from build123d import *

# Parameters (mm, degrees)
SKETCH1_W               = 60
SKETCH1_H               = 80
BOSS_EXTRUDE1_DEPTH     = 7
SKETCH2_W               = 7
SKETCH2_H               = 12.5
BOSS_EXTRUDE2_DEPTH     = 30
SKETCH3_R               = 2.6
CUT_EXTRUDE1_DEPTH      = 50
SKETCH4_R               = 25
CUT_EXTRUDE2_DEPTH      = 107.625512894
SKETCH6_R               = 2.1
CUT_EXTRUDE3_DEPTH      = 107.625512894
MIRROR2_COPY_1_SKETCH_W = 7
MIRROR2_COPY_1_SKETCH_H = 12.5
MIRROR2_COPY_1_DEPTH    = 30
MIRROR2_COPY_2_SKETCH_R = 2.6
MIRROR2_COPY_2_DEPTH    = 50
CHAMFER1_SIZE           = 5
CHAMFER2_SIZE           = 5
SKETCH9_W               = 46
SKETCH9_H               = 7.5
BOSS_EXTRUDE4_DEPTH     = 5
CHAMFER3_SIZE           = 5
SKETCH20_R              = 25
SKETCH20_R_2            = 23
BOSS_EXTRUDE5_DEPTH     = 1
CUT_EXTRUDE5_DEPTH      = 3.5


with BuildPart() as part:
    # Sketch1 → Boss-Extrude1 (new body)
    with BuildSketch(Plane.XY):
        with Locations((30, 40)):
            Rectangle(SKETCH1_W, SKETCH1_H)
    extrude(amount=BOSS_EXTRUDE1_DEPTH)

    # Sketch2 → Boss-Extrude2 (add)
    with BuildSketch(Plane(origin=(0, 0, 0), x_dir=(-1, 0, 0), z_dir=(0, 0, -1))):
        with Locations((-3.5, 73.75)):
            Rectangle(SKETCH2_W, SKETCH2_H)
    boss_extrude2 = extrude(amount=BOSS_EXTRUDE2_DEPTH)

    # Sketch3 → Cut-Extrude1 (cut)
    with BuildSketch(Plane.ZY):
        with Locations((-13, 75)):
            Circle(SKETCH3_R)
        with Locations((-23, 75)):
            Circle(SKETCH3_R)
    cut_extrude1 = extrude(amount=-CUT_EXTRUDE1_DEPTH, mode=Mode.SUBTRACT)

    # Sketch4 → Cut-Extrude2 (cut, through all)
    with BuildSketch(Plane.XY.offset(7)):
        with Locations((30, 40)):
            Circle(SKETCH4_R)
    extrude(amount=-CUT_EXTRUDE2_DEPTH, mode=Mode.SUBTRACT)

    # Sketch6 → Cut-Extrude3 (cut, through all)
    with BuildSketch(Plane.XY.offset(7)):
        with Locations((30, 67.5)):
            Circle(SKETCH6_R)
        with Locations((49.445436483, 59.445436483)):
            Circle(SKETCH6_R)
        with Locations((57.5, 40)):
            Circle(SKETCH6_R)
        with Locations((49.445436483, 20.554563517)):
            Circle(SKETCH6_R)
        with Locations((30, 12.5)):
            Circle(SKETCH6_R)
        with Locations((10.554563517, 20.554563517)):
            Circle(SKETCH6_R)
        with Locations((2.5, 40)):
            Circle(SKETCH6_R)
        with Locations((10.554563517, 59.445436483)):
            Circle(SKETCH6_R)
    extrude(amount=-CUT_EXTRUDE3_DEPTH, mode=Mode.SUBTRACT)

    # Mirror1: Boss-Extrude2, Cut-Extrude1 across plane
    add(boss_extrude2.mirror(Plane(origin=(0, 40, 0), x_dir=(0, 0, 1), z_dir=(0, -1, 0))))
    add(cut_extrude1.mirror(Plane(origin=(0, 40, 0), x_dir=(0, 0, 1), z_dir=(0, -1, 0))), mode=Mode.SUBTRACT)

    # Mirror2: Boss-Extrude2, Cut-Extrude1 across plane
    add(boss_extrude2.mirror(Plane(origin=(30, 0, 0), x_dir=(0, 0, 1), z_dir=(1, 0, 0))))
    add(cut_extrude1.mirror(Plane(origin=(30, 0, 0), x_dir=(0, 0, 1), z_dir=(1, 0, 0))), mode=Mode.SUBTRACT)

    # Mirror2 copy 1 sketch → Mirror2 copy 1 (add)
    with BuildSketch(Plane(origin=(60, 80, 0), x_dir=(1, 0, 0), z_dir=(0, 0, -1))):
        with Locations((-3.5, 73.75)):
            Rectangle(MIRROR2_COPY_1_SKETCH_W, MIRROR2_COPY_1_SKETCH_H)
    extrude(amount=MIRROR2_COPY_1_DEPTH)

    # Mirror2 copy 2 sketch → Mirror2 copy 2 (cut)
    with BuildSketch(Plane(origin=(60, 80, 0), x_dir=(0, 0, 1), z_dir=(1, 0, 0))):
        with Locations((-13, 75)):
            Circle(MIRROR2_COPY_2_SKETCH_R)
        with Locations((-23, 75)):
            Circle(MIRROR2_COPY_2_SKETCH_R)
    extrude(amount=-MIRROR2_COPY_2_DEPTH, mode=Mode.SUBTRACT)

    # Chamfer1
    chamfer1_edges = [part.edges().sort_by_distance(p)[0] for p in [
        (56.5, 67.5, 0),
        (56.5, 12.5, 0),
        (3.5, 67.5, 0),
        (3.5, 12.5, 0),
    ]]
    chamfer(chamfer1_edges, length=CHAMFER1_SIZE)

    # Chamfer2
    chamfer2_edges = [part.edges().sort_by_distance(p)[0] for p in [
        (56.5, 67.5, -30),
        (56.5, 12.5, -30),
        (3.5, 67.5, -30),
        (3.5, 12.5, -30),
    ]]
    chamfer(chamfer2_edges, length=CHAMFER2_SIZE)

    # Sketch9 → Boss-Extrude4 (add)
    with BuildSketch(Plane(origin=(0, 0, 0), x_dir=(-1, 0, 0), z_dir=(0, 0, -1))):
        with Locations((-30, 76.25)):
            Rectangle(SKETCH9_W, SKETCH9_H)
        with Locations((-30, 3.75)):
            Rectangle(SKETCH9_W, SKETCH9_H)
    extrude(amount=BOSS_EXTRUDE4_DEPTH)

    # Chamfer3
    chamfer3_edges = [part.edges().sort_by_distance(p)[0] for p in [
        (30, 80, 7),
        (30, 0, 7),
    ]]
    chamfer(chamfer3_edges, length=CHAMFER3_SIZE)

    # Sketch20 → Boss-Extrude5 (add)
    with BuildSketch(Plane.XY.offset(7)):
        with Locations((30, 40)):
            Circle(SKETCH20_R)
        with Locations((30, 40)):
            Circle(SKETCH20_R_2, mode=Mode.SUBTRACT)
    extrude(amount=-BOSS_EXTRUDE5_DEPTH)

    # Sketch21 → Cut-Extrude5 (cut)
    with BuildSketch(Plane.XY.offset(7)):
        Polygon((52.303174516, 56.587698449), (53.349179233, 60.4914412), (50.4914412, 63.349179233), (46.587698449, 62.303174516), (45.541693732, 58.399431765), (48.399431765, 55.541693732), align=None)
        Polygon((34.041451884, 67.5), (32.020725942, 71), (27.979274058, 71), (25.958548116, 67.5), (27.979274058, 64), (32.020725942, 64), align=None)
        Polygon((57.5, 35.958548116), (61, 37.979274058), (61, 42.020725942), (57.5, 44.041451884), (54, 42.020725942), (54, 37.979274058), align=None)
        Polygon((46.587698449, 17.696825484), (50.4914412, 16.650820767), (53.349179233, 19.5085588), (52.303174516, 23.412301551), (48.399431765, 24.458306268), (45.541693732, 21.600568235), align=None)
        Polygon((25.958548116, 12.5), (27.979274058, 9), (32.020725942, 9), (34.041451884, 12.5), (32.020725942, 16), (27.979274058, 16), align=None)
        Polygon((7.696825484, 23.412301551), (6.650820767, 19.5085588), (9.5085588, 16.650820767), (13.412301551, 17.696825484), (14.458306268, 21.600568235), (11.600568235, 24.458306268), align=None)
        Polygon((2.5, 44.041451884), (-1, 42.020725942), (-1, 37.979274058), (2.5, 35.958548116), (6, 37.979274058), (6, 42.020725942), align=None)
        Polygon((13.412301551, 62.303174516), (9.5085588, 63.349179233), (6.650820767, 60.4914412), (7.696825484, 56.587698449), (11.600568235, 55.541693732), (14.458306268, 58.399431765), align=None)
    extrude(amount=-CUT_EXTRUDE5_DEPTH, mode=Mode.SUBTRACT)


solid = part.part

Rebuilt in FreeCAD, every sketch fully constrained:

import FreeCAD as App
import Part
import Sketcher
Q = App.Units.Quantity


def edges_at(feature, points):
    """Names of the edges that pass closest to the given points."""
    edges = feature.Shape.Edges
    near = lambda p: min(range(len(edges)), key=lambda i: edges[i].distToShape(Part.Vertex(*p))[0])
    return sorted({f"Edge{near(p) + 1}" for p in points})

doc = App.newDocument("Part")
params = doc.addObject("Spreadsheet::Sheet", "Params")
for row, (alias, value) in enumerate([
    ("sketch1_width", "60 mm"),
    ("sketch1_height", "80 mm"),
    ("pad1_length", "7 mm"),
    ("sketch2_width", "7 mm"),
    ("sketch2_height", "12.5 mm"),
    ("pad2_length", "30 mm"),
    ("sketch3_diameter", "5.2 mm"),
    ("pocket1_length", "50 mm"),
    ("sketch4_diameter", "50 mm"),
    ("sketch5_diameter", "4.2 mm"),
    ("sketch6_width", "7 mm"),
    ("sketch6_height", "12.5 mm"),
    ("pad3_length", "30 mm"),
    ("sketch7_diameter", "5.2 mm"),
    ("pocket4_length", "50 mm"),
    ("chamfer_size", "5 mm"),
    ("chamfer2_size", "5 mm"),
    ("sketch8_width", "46 mm"),
    ("sketch8_height", "7.5 mm"),
    ("pad4_length", "5 mm"),
    ("chamfer3_size", "5 mm"),
    ("sketch9_diameter", "50 mm"),
    ("sketch9_diameter2", "46 mm"),
    ("pad5_length", "1 mm"),
    ("pocket5_length", "3.5 mm"),
], start=1):
    params.set(f"A{row}", alias)
    params.set(f"B{row}", "=" + value)
    params.setAlias(f"B{row}", alias)

body = doc.addObject("PartDesign::Body", "Body")

sketch1 = doc.addObject("Sketcher::SketchObject", "Sketch")
body.addObject(sketch1)
sketch1.AttachmentSupport = (doc.XY_Plane, [""])
sketch1.MapMode = "FlatFace"
sketch1.addGeometry([
    Part.LineSegment(App.Vector(0, 80, 0), App.Vector(0, 0, 0)),
    Part.LineSegment(App.Vector(0, 0, 0), App.Vector(60, 0, 0)),
    Part.LineSegment(App.Vector(60, 0, 0), App.Vector(60, 80, 0)),
    Part.LineSegment(App.Vector(60, 80, 0), App.Vector(0, 80, 0)),
], False)
sketch1.addConstraint([
    Sketcher.Constraint("Coincident", 0, 2, 1, 1),
    Sketcher.Constraint("Coincident", 1, 2, 2, 1),
    Sketcher.Constraint("Coincident", 2, 2, 3, 1),
    Sketcher.Constraint("Coincident", 3, 2, 0, 1),
    Sketcher.Constraint("Vertical", 0),
    Sketcher.Constraint("Horizontal", 1),
    Sketcher.Constraint("Vertical", 2),
    Sketcher.Constraint("Horizontal", 3),
    Sketcher.Constraint("Coincident", 0, 2, -1, 1),
    Sketcher.Constraint("DistanceX", 1, 1, 1, 2, Q("60 mm")),
    Sketcher.Constraint("DistanceY", 0, 2, 0, 1, Q("80 mm")),
])
sketch1.setExpression("Constraints[9]", "Params.sketch1_width")
sketch1.setExpression("Constraints[10]", "Params.sketch1_height")
pad1 = doc.addObject("PartDesign::Pad", "Pad")
body.addObject(pad1)
pad1.Profile = sketch1
pad1.setExpression("Length", "Params.pad1_length")

sketch2 = doc.addObject("Sketcher::SketchObject", "Sketch001")
body.addObject(sketch2)
sketch2.AttachmentSupport = (doc.XY_Plane, [""])
sketch2.MapMode = "FlatFace"
sketch2.addGeometry([
    Part.LineSegment(App.Vector(7, 80, 0), App.Vector(7, 67.5, 0)),
    Part.LineSegment(App.Vector(7, 67.5, 0), App.Vector(0, 67.5, 0)),
    Part.LineSegment(App.Vector(0, 67.5, 0), App.Vector(0, 80, 0)),
    Part.LineSegment(App.Vector(0, 80, 0), App.Vector(7, 80, 0)),
], False)
sketch2.addConstraint([
    Sketcher.Constraint("Coincident", 0, 2, 1, 1),
    Sketcher.Constraint("Coincident", 1, 2, 2, 1),
    Sketcher.Constraint("Coincident", 2, 2, 3, 1),
    Sketcher.Constraint("Coincident", 3, 2, 0, 1),
    Sketcher.Constraint("Vertical", 0),
    Sketcher.Constraint("Horizontal", 1),
    Sketcher.Constraint("Vertical", 2),
    Sketcher.Constraint("Horizontal", 3),
    Sketcher.Constraint("PointOnObject", 1, 2, -2),
    Sketcher.Constraint("DistanceX", 1, 2, 1, 1, Q("7 mm")),
    Sketcher.Constraint("DistanceY", 0, 2, 0, 1, Q("12.5 mm")),
    Sketcher.Constraint("DistanceY", -1, 1, 2, 2, Q("80 mm")),
])
sketch2.setExpression("Constraints[9]", "Params.sketch2_width")
sketch2.setExpression("Constraints[10]", "Params.sketch2_height")
pad2 = doc.addObject("PartDesign::Pad", "Pad001")
body.addObject(pad2)
pad2.Profile = sketch2
pad2.setExpression("Length", "Params.pad2_length")
pad2.Reversed = True

sketch3 = doc.addObject("Sketcher::SketchObject", "Sketch002")
body.addObject(sketch3)
sketch3.AttachmentSupport = (doc.YZ_Plane, [""])
sketch3.MapMode = "FlatFace"
sketch3.addGeometry([
    Part.Circle(App.Vector(75, -13, 0), App.Vector(0, 0, 1), 2.6),
    Part.Circle(App.Vector(75, -23, 0), App.Vector(0, 0, 1), 2.6),
], False)
sketch3.addConstraint([
    Sketcher.Constraint("Equal", 0, 1),
    Sketcher.Constraint("Vertical", 0, 3, 1, 3),
    Sketcher.Constraint("Diameter", 0, Q("5.2 mm")),
    Sketcher.Constraint("DistanceX", -1, 1, 0, 3, Q("75 mm")),
    Sketcher.Constraint("DistanceY", 0, 3, -1, 1, Q("13 mm")),
    Sketcher.Constraint("DistanceY", 1, 3, -1, 1, Q("23 mm")),
])
sketch3.setExpression("Constraints[2]", "Params.sketch3_diameter")
pocket1 = doc.addObject("PartDesign::Pocket", "Pocket")
body.addObject(pocket1)
pocket1.Profile = sketch3
pocket1.setExpression("Length", "Params.pocket1_length")
pocket1.Reversed = True

sketch4 = doc.addObject("Sketcher::SketchObject", "Sketch003")
body.addObject(sketch4)
sketch4.AttachmentSupport = (doc.XY_Plane, [""])
sketch4.MapMode = "FlatFace"
sketch4.AttachmentOffset = App.Placement(App.Vector(0, 0, 7), App.Rotation())
sketch4.addGeometry(Part.Circle(App.Vector(30, 40, 0), App.Vector(0, 0, 1), 25), False)
sketch4.addConstraint([
    Sketcher.Constraint("Diameter", 0, Q("50 mm")),
    Sketcher.Constraint("DistanceX", -1, 1, 0, 3, Q("30 mm")),
    Sketcher.Constraint("DistanceY", -1, 1, 0, 3, Q("40 mm")),
])
sketch4.setExpression("Constraints[0]", "Params.sketch4_diameter")
pocket2 = doc.addObject("PartDesign::Pocket", "Pocket001")
body.addObject(pocket2)
pocket2.Profile = sketch4
pocket2.Type = "ThroughAll"

sketch5 = doc.addObject("Sketcher::SketchObject", "Sketch004")
body.addObject(sketch5)
sketch5.AttachmentSupport = (doc.XY_Plane, [""])
sketch5.MapMode = "FlatFace"
sketch5.AttachmentOffset = App.Placement(App.Vector(0, 0, 7), App.Rotation())
sketch5.addGeometry([
    Part.Circle(App.Vector(30, 67.5, 0), App.Vector(0, 0, 1), 2.1),
    Part.Circle(App.Vector(49.445436, 59.445436, 0), App.Vector(0, 0, 1), 2.1),
    Part.Circle(App.Vector(57.5, 40, 0), App.Vector(0, 0, 1), 2.1),
    Part.Circle(App.Vector(49.445436, 20.554564, 0), App.Vector(0, 0, 1), 2.1),
    Part.Circle(App.Vector(30, 12.5, 0), App.Vector(0, 0, 1), 2.1),
    Part.Circle(App.Vector(10.554564, 20.554564, 0), App.Vector(0, 0, 1), 2.1),
    Part.Circle(App.Vector(2.5, 40, 0), App.Vector(0, 0, 1), 2.1),
    Part.Circle(App.Vector(10.554564, 59.445436, 0), App.Vector(0, 0, 1), 2.1),
], False)
sketch5.addConstraint([
    Sketcher.Constraint("Equal", 0, 1),
    Sketcher.Constraint("Equal", 1, 2),
    Sketcher.Constraint("Equal", 2, 3),
    Sketcher.Constraint("Equal", 3, 4),
    Sketcher.Constraint("Equal", 4, 5),
    Sketcher.Constraint("Equal", 5, 6),
    Sketcher.Constraint("Equal", 6, 7),
    Sketcher.Constraint("Horizontal", 3, 3, 5, 3),
    Sketcher.Constraint("Horizontal", 2, 3, 6, 3),
    Sketcher.Constraint("Horizontal", 1, 3, 7, 3),
    Sketcher.Constraint("Vertical", 1, 3, 3, 3),
    Sketcher.Constraint("Vertical", 0, 3, 4, 3),
    Sketcher.Constraint("Vertical", 5, 3, 7, 3),
    Sketcher.Constraint("Diameter", 0, Q("4.2 mm")),
    Sketcher.Constraint("DistanceX", -1, 1, 0, 3, Q("30 mm")),
    Sketcher.Constraint("DistanceY", -1, 1, 2, 3, Q("40 mm")),
    Sketcher.Constraint("DistanceY", 4, 3, 0, 3, Q("55 mm")),
    Sketcher.Constraint("DistanceY", -1, 1, 0, 3, Q("67.5 mm")),
    Sketcher.Constraint("DistanceX", -1, 1, 2, 3, Q("57.5 mm")),
    Sketcher.Constraint("DistanceX", -1, 1, 6, 3, Q("2.5 mm")),
    Sketcher.Constraint("DistanceX", -1, 1, 1, 3, Q("49.445436 mm")),
    Sketcher.Constraint("DistanceY", -1, 1, 1, 3, Q("59.445436 mm")),
    Sketcher.Constraint("DistanceY", -1, 1, 3, 3, Q("20.554564 mm")),
    Sketcher.Constraint("DistanceX", -1, 1, 5, 3, Q("10.554564 mm")),
])
sketch5.setExpression("Constraints[13]", "Params.sketch5_diameter")
pocket3 = doc.addObject("PartDesign::Pocket", "Pocket002")
body.addObject(pocket3)
pocket3.Profile = sketch5
pocket3.Type = "ThroughAll"
doc.recompute()

datumplane = doc.addObject("PartDesign::Plane", "DatumPlane")
body.addObject(datumplane)
datumplane.AttachmentSupport = (doc.XZ_Plane, [""])
datumplane.MapMode = "FlatFace"
datumplane.AttachmentOffset = App.Placement(App.Vector(0, 0, -40), App.Rotation())
mirrored = doc.addObject("PartDesign::Mirrored", "Mirrored")
body.addObject(mirrored)
mirrored.Originals = [pad2, pocket1]
mirrored.MirrorPlane = (datumplane, [""])
body.Tip = mirrored
doc.recompute()

datumplane2 = doc.addObject("PartDesign::Plane", "DatumPlane001")
body.addObject(datumplane2)
datumplane2.AttachmentSupport = (doc.YZ_Plane, [""])
datumplane2.MapMode = "FlatFace"
datumplane2.AttachmentOffset = App.Placement(App.Vector(0, 0, 30), App.Rotation())
mirrored2 = doc.addObject("PartDesign::Mirrored", "Mirrored001")
body.addObject(mirrored2)
mirrored2.Originals = [pad2, pocket1]
mirrored2.MirrorPlane = (datumplane2, [""])
body.Tip = mirrored2

sketch6 = doc.addObject("Sketcher::SketchObject", "Sketch005")
body.addObject(sketch6)
sketch6.AttachmentSupport = (doc.XY_Plane, [""])
sketch6.MapMode = "FlatFace"
sketch6.addGeometry([
    Part.LineSegment(App.Vector(53, 0, 0), App.Vector(53, 12.5, 0)),
    Part.LineSegment(App.Vector(53, 12.5, 0), App.Vector(60, 12.5, 0)),
    Part.LineSegment(App.Vector(60, 12.5, 0), App.Vector(60, 0, 0)),
    Part.LineSegment(App.Vector(60, 0, 0), App.Vector(53, 0, 0)),
], False)
sketch6.addConstraint([
    Sketcher.Constraint("Coincident", 0, 2, 1, 1),
    Sketcher.Constraint("Coincident", 1, 2, 2, 1),
    Sketcher.Constraint("Coincident", 2, 2, 3, 1),
    Sketcher.Constraint("Coincident", 3, 2, 0, 1),
    Sketcher.Constraint("Vertical", 0),
    Sketcher.Constraint("Horizontal", 1),
    Sketcher.Constraint("Vertical", 2),
    Sketcher.Constraint("Horizontal", 3),
    Sketcher.Constraint("PointOnObject", 2, 2, -1),
    Sketcher.Constraint("DistanceX", 1, 1, 1, 2, Q("7 mm")),
    Sketcher.Constraint("DistanceY", 0, 1, 0, 2, Q("12.5 mm")),
    Sketcher.Constraint("DistanceX", -1, 1, 0, 2, Q("53 mm")),
])
sketch6.setExpression("Constraints[9]", "Params.sketch6_width")
sketch6.setExpression("Constraints[10]", "Params.sketch6_height")
pad3 = doc.addObject("PartDesign::Pad", "Pad002")
body.addObject(pad3)
pad3.Profile = sketch6
pad3.setExpression("Length", "Params.pad3_length")
pad3.Reversed = True

sketch7 = doc.addObject("Sketcher::SketchObject", "Sketch006")
body.addObject(sketch7)
sketch7.AttachmentSupport = (doc.YZ_Plane, [""])
sketch7.MapMode = "FlatFace"
sketch7.AttachmentOffset = App.Placement(App.Vector(0, 0, 60), App.Rotation())
sketch7.addGeometry([
    Part.Circle(App.Vector(5, -13, 0), App.Vector(0, 0, 1), 2.6),
    Part.Circle(App.Vector(5, -23, 0), App.Vector(0, 0, 1), 2.6),
], False)
sketch7.addConstraint([
    Sketcher.Constraint("Equal", 0, 1),
    Sketcher.Constraint("Vertical", 0, 3, 1, 3),
    Sketcher.Constraint("Diameter", 0, Q("5.2 mm")),
    Sketcher.Constraint("DistanceX", -1, 1, 0, 3, Q("5 mm")),
    Sketcher.Constraint("DistanceY", 0, 3, -1, 1, Q("13 mm")),
    Sketcher.Constraint("DistanceY", 1, 3, -1, 1, Q("23 mm")),
])
sketch7.setExpression("Constraints[2]", "Params.sketch7_diameter")
pocket4 = doc.addObject("PartDesign::Pocket", "Pocket003")
body.addObject(pocket4)
pocket4.Profile = sketch7
pocket4.setExpression("Length", "Params.pocket4_length")
doc.recompute()

chamfer = doc.addObject("PartDesign::Chamfer", "Chamfer")
body.addObject(chamfer)
chamfer.Base = (pocket4, edges_at(pocket4, [
    (56.5, 67.5, 0),
    (56.5, 12.5, 0),
    (3.5, 67.5, 0),
    (3.5, 12.5, 0),
]))
chamfer.setExpression("Size", "Params.chamfer_size")
doc.recompute()

chamfer2 = doc.addObject("PartDesign::Chamfer", "Chamfer001")
body.addObject(chamfer2)
chamfer2.Base = (chamfer, edges_at(chamfer, [
    (56.5, 67.5, -30),
    (56.5, 12.5, -30),
    (3.5, 67.5, -30),
    (3.5, 12.5, -30),
]))
chamfer2.setExpression("Size", "Params.chamfer2_size")

sketch8 = doc.addObject("Sketcher::SketchObject", "Sketch007")
body.addObject(sketch8)
sketch8.AttachmentSupport = (doc.XY_Plane, [""])
sketch8.MapMode = "FlatFace"
sketch8.addGeometry([
    Part.LineSegment(App.Vector(53, 80, 0), App.Vector(53, 72.5, 0)),
    Part.LineSegment(App.Vector(53, 72.5, 0), App.Vector(7, 72.5, 0)),
    Part.LineSegment(App.Vector(7, 72.5, 0), App.Vector(7, 80, 0)),
    Part.LineSegment(App.Vector(7, 80, 0), App.Vector(53, 80, 0)),
    Part.LineSegment(App.Vector(53, 7.5, 0), App.Vector(53, 0, 0)),
    Part.LineSegment(App.Vector(53, 0, 0), App.Vector(7, 0, 0)),
    Part.LineSegment(App.Vector(7, 0, 0), App.Vector(7, 7.5, 0)),
    Part.LineSegment(App.Vector(7, 7.5, 0), App.Vector(53, 7.5, 0)),
], False)
sketch8.addConstraint([
    Sketcher.Constraint("Coincident", 0, 2, 1, 1),
    Sketcher.Constraint("Coincident", 1, 2, 2, 1),
    Sketcher.Constraint("Coincident", 2, 2, 3, 1),
    Sketcher.Constraint("Coincident", 3, 2, 0, 1),
    Sketcher.Constraint("Coincident", 4, 2, 5, 1),
    Sketcher.Constraint("Coincident", 5, 2, 6, 1),
    Sketcher.Constraint("Coincident", 6, 2, 7, 1),
    Sketcher.Constraint("Coincident", 7, 2, 4, 1),
    Sketcher.Constraint("Vertical", 0),
    Sketcher.Constraint("Horizontal", 1),
    Sketcher.Constraint("Vertical", 2),
    Sketcher.Constraint("Horizontal", 3),
    Sketcher.Constraint("Vertical", 4),
    Sketcher.Constraint("Horizontal", 5),
    Sketcher.Constraint("Vertical", 6),
    Sketcher.Constraint("Horizontal", 7),
    Sketcher.Constraint("PointOnObject", 4, 2, -1),
    Sketcher.Constraint("Vertical", 3, 2, 4, 2),
    Sketcher.Constraint("Vertical", 2, 2, 5, 2),
    Sketcher.Constraint("Equal", 2, 4),
    Sketcher.Constraint("DistanceX", 1, 2, 1, 1, Q("46 mm")),
    Sketcher.Constraint("DistanceY", 0, 2, 0, 1, Q("7.5 mm")),
    Sketcher.Constraint("DistanceX", -1, 1, 0, 2, Q("53 mm")),
    Sketcher.Constraint("DistanceY", -1, 1, 2, 2, Q("80 mm")),
])
sketch8.setExpression("Constraints[20]", "Params.sketch8_width")
sketch8.setExpression("Constraints[21]", "Params.sketch8_height")
pad4 = doc.addObject("PartDesign::Pad", "Pad003")
body.addObject(pad4)
pad4.Profile = sketch8
pad4.setExpression("Length", "Params.pad4_length")
pad4.Reversed = True
doc.recompute()

chamfer3 = doc.addObject("PartDesign::Chamfer", "Chamfer002")
body.addObject(chamfer3)
chamfer3.Base = (pad4, edges_at(pad4, [(30, 80, 7), (30, 0, 7)]))
chamfer3.setExpression("Size", "Params.chamfer3_size")

sketch9 = doc.addObject("Sketcher::SketchObject", "Sketch008")
body.addObject(sketch9)
sketch9.AttachmentSupport = (doc.XY_Plane, [""])
sketch9.MapMode = "FlatFace"
sketch9.AttachmentOffset = App.Placement(App.Vector(0, 0, 7), App.Rotation())
sketch9.addGeometry([
    Part.Circle(App.Vector(30, 40, 0), App.Vector(0, 0, 1), 25),
    Part.Circle(App.Vector(30, 40, 0), App.Vector(0, 0, 1), 23),
], False)
sketch9.addConstraint([
    Sketcher.Constraint("Coincident", 1, 3, 0, 3),
    Sketcher.Constraint("Diameter", 0, Q("50 mm")),
    Sketcher.Constraint("Diameter", 1, Q("46 mm")),
    Sketcher.Constraint("DistanceX", -1, 1, 0, 3, Q("30 mm")),
    Sketcher.Constraint("DistanceY", -1, 1, 0, 3, Q("40 mm")),
])
sketch9.setExpression("Constraints[1]", "Params.sketch9_diameter")
sketch9.setExpression("Constraints[2]", "Params.sketch9_diameter2")
pad5 = doc.addObject("PartDesign::Pad", "Pad004")
body.addObject(pad5)
pad5.Profile = sketch9
pad5.setExpression("Length", "Params.pad5_length")
pad5.Reversed = True

sketch10 = doc.addObject("Sketcher::SketchObject", "Sketch009")
body.addObject(sketch10)
sketch10.AttachmentSupport = (doc.XY_Plane, [""])
sketch10.MapMode = "FlatFace"
sketch10.AttachmentOffset = App.Placement(App.Vector(0, 0, 7), App.Rotation())
sketch10.addGeometry([
    Part.LineSegment(App.Vector(52.303175, 56.587698, 0), App.Vector(53.349179, 60.491441, 0)),
    Part.LineSegment(App.Vector(53.349179, 60.491441, 0), App.Vector(50.491441, 63.349179, 0)),
    Part.LineSegment(App.Vector(50.491441, 63.349179, 0), App.Vector(46.587698, 62.303175, 0)),
    Part.LineSegment(App.Vector(46.587698, 62.303175, 0), App.Vector(45.541694, 58.399432, 0)),
    Part.LineSegment(App.Vector(45.541694, 58.399432, 0), App.Vector(48.399432, 55.541694, 0)),
    Part.LineSegment(App.Vector(48.399432, 55.541694, 0), App.Vector(52.303175, 56.587698, 0)),
    Part.LineSegment(App.Vector(34.041452, 67.5, 0), App.Vector(32.020726, 71, 0)),
    Part.LineSegment(App.Vector(32.020726, 71, 0), App.Vector(27.979274, 71, 0)),
    Part.LineSegment(App.Vector(27.979274, 71, 0), App.Vector(25.958548, 67.5, 0)),
    Part.LineSegment(App.Vector(25.958548, 67.5, 0), App.Vector(27.979274, 64, 0)),
    Part.LineSegment(App.Vector(27.979274, 64, 0), App.Vector(32.020726, 64, 0)),
    Part.LineSegment(App.Vector(32.020726, 64, 0), App.Vector(34.041452, 67.5, 0)),
    Part.LineSegment(App.Vector(57.5, 35.958548, 0), App.Vector(61, 37.979274, 0)),
    Part.LineSegment(App.Vector(61, 37.979274, 0), App.Vector(61, 42.020726, 0)),
    Part.LineSegment(App.Vector(61, 42.020726, 0), App.Vector(57.5, 44.041452, 0)),
    Part.LineSegment(App.Vector(57.5, 44.041452, 0), App.Vector(54, 42.020726, 0)),
    Part.LineSegment(App.Vector(54, 42.020726, 0), App.Vector(54, 37.979274, 0)),
    Part.LineSegment(App.Vector(54, 37.979274, 0), App.Vector(57.5, 35.958548, 0)),
    Part.LineSegment(App.Vector(46.587698, 17.696825, 0), App.Vector(50.491441, 16.650821, 0)),
    Part.LineSegment(App.Vector(50.491441, 16.650821, 0), App.Vector(53.349179, 19.508559, 0)),
    Part.LineSegment(App.Vector(53.349179, 19.508559, 0), App.Vector(52.303175, 23.412302, 0)),
    Part.LineSegment(App.Vector(52.303175, 23.412302, 0), App.Vector(48.399432, 24.458306, 0)),
    Part.LineSegment(App.Vector(48.399432, 24.458306, 0), App.Vector(45.541694, 21.600568, 0)),
    Part.LineSegment(App.Vector(45.541694, 21.600568, 0), App.Vector(46.587698, 17.696825, 0)),
    Part.LineSegment(App.Vector(25.958548, 12.5, 0), App.Vector(27.979274, 9, 0)),
    Part.LineSegment(App.Vector(27.979274, 9, 0), App.Vector(32.020726, 9, 0)),
    Part.LineSegment(App.Vector(32.020726, 9, 0), App.Vector(34.041452, 12.5, 0)),
    Part.LineSegment(App.Vector(34.041452, 12.5, 0), App.Vector(32.020726, 16, 0)),
    Part.LineSegment(App.Vector(32.020726, 16, 0), App.Vector(27.979274, 16, 0)),
    Part.LineSegment(App.Vector(27.979274, 16, 0), App.Vector(25.958548, 12.5, 0)),
    Part.LineSegment(App.Vector(7.696825, 23.412302, 0), App.Vector(6.650821, 19.508559, 0)),
    Part.LineSegment(App.Vector(6.650821, 19.508559, 0), App.Vector(9.508559, 16.650821, 0)),
    Part.LineSegment(App.Vector(9.508559, 16.650821, 0), App.Vector(13.412302, 17.696825, 0)),
    Part.LineSegment(App.Vector(13.412302, 17.696825, 0), App.Vector(14.458306, 21.600568, 0)),
    Part.LineSegment(App.Vector(14.458306, 21.600568, 0), App.Vector(11.600568, 24.458306, 0)),
    Part.LineSegment(App.Vector(11.600568, 24.458306, 0), App.Vector(7.696825, 23.412302, 0)),
    Part.LineSegment(App.Vector(2.5, 44.041452, 0), App.Vector(-1, 42.020726, 0)),
    Part.LineSegment(App.Vector(-1, 42.020726, 0), App.Vector(-1, 37.979274, 0)),
    Part.LineSegment(App.Vector(-1, 37.979274, 0), App.Vector(2.5, 35.958548, 0)),
    Part.LineSegment(App.Vector(2.5, 35.958548, 0), App.Vector(6, 37.979274, 0)),
    Part.LineSegment(App.Vector(6, 37.979274, 0), App.Vector(6, 42.020726, 0)),
    Part.LineSegment(App.Vector(6, 42.020726, 0), App.Vector(2.5, 44.041452, 0)),
    Part.LineSegment(App.Vector(13.412302, 62.303175, 0), App.Vector(9.508559, 63.349179, 0)),
    Part.LineSegment(App.Vector(9.508559, 63.349179, 0), App.Vector(6.650821, 60.491441, 0)),
    Part.LineSegment(App.Vector(6.650821, 60.491441, 0), App.Vector(7.696825, 56.587698, 0)),
    Part.LineSegment(App.Vector(7.696825, 56.587698, 0), App.Vector(11.600568, 55.541694, 0)),
    Part.LineSegment(App.Vector(11.600568, 55.541694, 0), App.Vector(14.458306, 58.399432, 0)),
    Part.LineSegment(App.Vector(14.458306, 58.399432, 0), App.Vector(13.412302, 62.303175, 0)),
], False)
sketch10.addConstraint([
    Sketcher.Constraint("Coincident", 0, 2, 1, 1),
    Sketcher.Constraint("Coincident", 1, 2, 2, 1),
    Sketcher.Constraint("Coincident", 2, 2, 3, 1),
    Sketcher.Constraint("Coincident", 3, 2, 4, 1),
    Sketcher.Constraint("Coincident", 4, 2, 5, 1),
    Sketcher.Constraint("Coincident", 5, 2, 0, 1),
    Sketcher.Constraint("Coincident", 6, 2, 7, 1),
    Sketcher.Constraint("Coincident", 7, 2, 8, 1),
    Sketcher.Constraint("Coincident", 8, 2, 9, 1),
    Sketcher.Constraint("Coincident", 9, 2, 10, 1),
    Sketcher.Constraint("Coincident", 10, 2, 11, 1),
    Sketcher.Constraint("Coincident", 11, 2, 6, 1),
    Sketcher.Constraint("Coincident", 12, 2, 13, 1),
    Sketcher.Constraint("Coincident", 13, 2, 14, 1),
    Sketcher.Constraint("Coincident", 14, 2, 15, 1),
    Sketcher.Constraint("Coincident", 15, 2, 16, 1),
    Sketcher.Constraint("Coincident", 16, 2, 17, 1),
    Sketcher.Constraint("Coincident", 17, 2, 12, 1),
    Sketcher.Constraint("Coincident", 18, 2, 19, 1),
    Sketcher.Constraint("Coincident", 19, 2, 20, 1),
    Sketcher.Constraint("Coincident", 20, 2, 21, 1),
    Sketcher.Constraint("Coincident", 21, 2, 22, 1),
    Sketcher.Constraint("Coincident", 22, 2, 23, 1),
    Sketcher.Constraint("Coincident", 23, 2, 18, 1),
    Sketcher.Constraint("Coincident", 24, 2, 25, 1),
    Sketcher.Constraint("Coincident", 25, 2, 26, 1),
    Sketcher.Constraint("Coincident", 26, 2, 27, 1),
    Sketcher.Constraint("Coincident", 27, 2, 28, 1),
    Sketcher.Constraint("Coincident", 28, 2, 29, 1),
    Sketcher.Constraint("Coincident", 29, 2, 24, 1),
    Sketcher.Constraint("Coincident", 30, 2, 31, 1),
    Sketcher.Constraint("Coincident", 31, 2, 32, 1),
    Sketcher.Constraint("Coincident", 32, 2, 33, 1),
    Sketcher.Constraint("Coincident", 33, 2, 34, 1),
    Sketcher.Constraint("Coincident", 34, 2, 35, 1),
    Sketcher.Constraint("Coincident", 35, 2, 30, 1),
    Sketcher.Constraint("Coincident", 36, 2, 37, 1),
    Sketcher.Constraint("Coincident", 37, 2, 38, 1),
    Sketcher.Constraint("Coincident", 38, 2, 39, 1),
    Sketcher.Constraint("Coincident", 39, 2, 40, 1),
    Sketcher.Constraint("Coincident", 40, 2, 41, 1),
    Sketcher.Constraint("Coincident", 41, 2, 36, 1),
    Sketcher.Constraint("Coincident", 42, 2, 43, 1),
    Sketcher.Constraint("Coincident", 43, 2, 44, 1),
    Sketcher.Constraint("Coincident", 44, 2, 45, 1),
    Sketcher.Constraint("Coincident", 45, 2, 46, 1),
    Sketcher.Constraint("Coincident", 46, 2, 47, 1),
    Sketcher.Constraint("Coincident", 47, 2, 42, 1),
    Sketcher.Constraint("Horizontal", 7),
    Sketcher.Constraint("Horizontal", 10),
    Sketcher.Constraint("Vertical", 13),
    Sketcher.Constraint("Vertical", 16),
    Sketcher.Constraint("Horizontal", 25),
    Sketcher.Constraint("Horizontal", 28),
    Sketcher.Constraint("Vertical", 37),
    Sketcher.Constraint("Vertical", 40),
    Sketcher.Constraint("Parallel", 0, 3),
    Sketcher.Constraint("Parallel", 1, 4),
    Sketcher.Constraint("Parallel", 2, 5),
    Sketcher.Constraint("Parallel", 6, 9),
    Sketcher.Constraint("Parallel", 8, 11),
    Sketcher.Constraint("Perpendicular", 9, 12),
    Sketcher.Constraint("Perpendicular", 11, 14),
    Sketcher.Constraint("Parallel", 12, 15),
    Sketcher.Constraint("Parallel", 14, 17),
    Sketcher.Constraint("Perpendicular", 3, 18),
    Sketcher.Constraint("Perpendicular", 4, 19),
    Sketcher.Constraint("Perpendicular", 5, 20),
    Sketcher.Constraint("Parallel", 18, 21),
    Sketcher.Constraint("Parallel", 19, 22),
    Sketcher.Constraint("Parallel", 20, 23),
    Sketcher.Constraint("Perpendicular", 15, 24),
    Sketcher.Constraint("Perpendicular", 17, 26),
    Sketcher.Constraint("Parallel", 24, 27),
    Sketcher.Constraint("Parallel", 26, 29),
    Sketcher.Constraint("Perpendicular", 21, 30),
    Sketcher.Constraint("Perpendicular", 22, 31),
    Sketcher.Constraint("Perpendicular", 23, 32),
    Sketcher.Constraint("Parallel", 30, 33),
    Sketcher.Constraint("Parallel", 31, 34),
    Sketcher.Constraint("Parallel", 32, 35),
    Sketcher.Constraint("Perpendicular", 27, 36),
    Sketcher.Constraint("Perpendicular", 29, 38),
    Sketcher.Constraint("Parallel", 36, 39),
    Sketcher.Constraint("Parallel", 38, 41),
    Sketcher.Constraint("Perpendicular", 33, 42),
    Sketcher.Constraint("Perpendicular", 34, 43),
    Sketcher.Constraint("Perpendicular", 35, 44),
    Sketcher.Constraint("Parallel", 42, 45),
    Sketcher.Constraint("Parallel", 43, 46),
    Sketcher.Constraint("Parallel", 44, 47),
    Sketcher.Constraint("Horizontal", 8, 2, 11, 2),
    Sketcher.Constraint("Horizontal", 13, 2, 15, 2),
    Sketcher.Constraint("Horizontal", 12, 2, 16, 2),
    Sketcher.Constraint("Horizontal", 26, 2, 29, 2),
    Sketcher.Constraint("Horizontal", 19, 2, 30, 2),
    Sketcher.Constraint("Horizontal", 18, 2, 31, 2),
    Sketcher.Constraint("Horizontal", 23, 2, 32, 2),
    Sketcher.Constraint("Horizontal", 22, 2, 33, 2),
    Sketcher.Constraint("Horizontal", 21, 2, 34, 2),
    Sketcher.Constraint("Horizontal", 15, 2, 36, 2),
    Sketcher.Constraint("Horizontal", 16, 2, 37, 2),
    Sketcher.Constraint("Horizontal", 17, 2, 38, 2),
    Sketcher.Constraint("Horizontal", 37, 2, 39, 2),
    Sketcher.Constraint("Horizontal", 36, 2, 40, 2),
    Sketcher.Constraint("Horizontal", 1, 2, 42, 2),
    Sketcher.Constraint("Horizontal", 0, 2, 43, 2),
    Sketcher.Constraint("Horizontal", 5, 2, 44, 2),
    Sketcher.Constraint("Horizontal", 4, 2, 45, 2),
    Sketcher.Constraint("Horizontal", 3, 2, 46, 2),
    Sketcher.Constraint("Vertical", 7, 2, 9, 2),
    Sketcher.Constraint("Vertical", 6, 2, 10, 2),
    Sketcher.Constraint("Vertical", 1, 2, 18, 2),
    Sketcher.Constraint("Vertical", 0, 2, 19, 2),
    Sketcher.Constraint("Vertical", 5, 2, 20, 2),
    Sketcher.Constraint("Vertical", 4, 2, 21, 2),
    Sketcher.Constraint("Vertical", 3, 2, 22, 2),
    Sketcher.Constraint("Vertical", 9, 2, 24, 2),
    Sketcher.Constraint("Vertical", 10, 2, 25, 2),
    Sketcher.Constraint("Vertical", 11, 2, 26, 2),
    Sketcher.Constraint("Vertical", 25, 2, 27, 2),
    Sketcher.Constraint("Vertical", 31, 2, 42, 2),
    Sketcher.Constraint("Vertical", 30, 2, 43, 2),
    Sketcher.Constraint("Vertical", 35, 2, 44, 2),
    Sketcher.Constraint("Equal", 28, 13),
    Sketcher.Constraint("Equal", 0, 1),
    Sketcher.Constraint("Equal", 1, 2),
    Sketcher.Constraint("Equal", 2, 3),
    Sketcher.Constraint("Equal", 5, 6),
    Sketcher.Constraint("Equal", 11, 12),
    Sketcher.Constraint("Angle", 0, Q("75 deg")),
    Sketcher.Constraint("Angle", 6, Q("120 deg")),
    Sketcher.Constraint("DistanceY", -1, 1, 6, 2, Q("71 mm")),
    Sketcher.Constraint("DistanceY", -1, 1, 9, 2, Q("64 mm")),
    Sketcher.Constraint("DistanceX", -1, 1, 12, 2, Q("61 mm")),
    Sketcher.Constraint("DistanceY", -1, 1, 24, 2, Q("9 mm")),
    Sketcher.Constraint("DistanceX", 36, 2, -1, 1, Q("1 mm")),
    Sketcher.Constraint("DistanceX", 7, 2, 7, 1, Q("4.041452 mm")),
    Sketcher.Constraint("DistanceX", -1, 1, 2, 2, Q("46.587698 mm")),
    Sketcher.Constraint("DistanceY", -1, 1, 5, 2, Q("56.587698 mm")),
    Sketcher.Constraint("DistanceY", -1, 1, 20, 2, Q("23.412302 mm")),
    Sketcher.Constraint("DistanceX", -1, 1, 32, 2, Q("13.412302 mm")),
    Sketcher.Constraint("DistanceX", -1, 1, 8, 2, Q("25.958548 mm")),
    Sketcher.Constraint("DistanceY", -1, 1, 14, 2, Q("44.041452 mm")),
])
pocket5 = doc.addObject("PartDesign::Pocket", "Pocket004")
body.addObject(pocket5)
pocket5.Profile = sketch10
pocket5.setExpression("Length", "Params.pocket5_length")

doc.recompute()
